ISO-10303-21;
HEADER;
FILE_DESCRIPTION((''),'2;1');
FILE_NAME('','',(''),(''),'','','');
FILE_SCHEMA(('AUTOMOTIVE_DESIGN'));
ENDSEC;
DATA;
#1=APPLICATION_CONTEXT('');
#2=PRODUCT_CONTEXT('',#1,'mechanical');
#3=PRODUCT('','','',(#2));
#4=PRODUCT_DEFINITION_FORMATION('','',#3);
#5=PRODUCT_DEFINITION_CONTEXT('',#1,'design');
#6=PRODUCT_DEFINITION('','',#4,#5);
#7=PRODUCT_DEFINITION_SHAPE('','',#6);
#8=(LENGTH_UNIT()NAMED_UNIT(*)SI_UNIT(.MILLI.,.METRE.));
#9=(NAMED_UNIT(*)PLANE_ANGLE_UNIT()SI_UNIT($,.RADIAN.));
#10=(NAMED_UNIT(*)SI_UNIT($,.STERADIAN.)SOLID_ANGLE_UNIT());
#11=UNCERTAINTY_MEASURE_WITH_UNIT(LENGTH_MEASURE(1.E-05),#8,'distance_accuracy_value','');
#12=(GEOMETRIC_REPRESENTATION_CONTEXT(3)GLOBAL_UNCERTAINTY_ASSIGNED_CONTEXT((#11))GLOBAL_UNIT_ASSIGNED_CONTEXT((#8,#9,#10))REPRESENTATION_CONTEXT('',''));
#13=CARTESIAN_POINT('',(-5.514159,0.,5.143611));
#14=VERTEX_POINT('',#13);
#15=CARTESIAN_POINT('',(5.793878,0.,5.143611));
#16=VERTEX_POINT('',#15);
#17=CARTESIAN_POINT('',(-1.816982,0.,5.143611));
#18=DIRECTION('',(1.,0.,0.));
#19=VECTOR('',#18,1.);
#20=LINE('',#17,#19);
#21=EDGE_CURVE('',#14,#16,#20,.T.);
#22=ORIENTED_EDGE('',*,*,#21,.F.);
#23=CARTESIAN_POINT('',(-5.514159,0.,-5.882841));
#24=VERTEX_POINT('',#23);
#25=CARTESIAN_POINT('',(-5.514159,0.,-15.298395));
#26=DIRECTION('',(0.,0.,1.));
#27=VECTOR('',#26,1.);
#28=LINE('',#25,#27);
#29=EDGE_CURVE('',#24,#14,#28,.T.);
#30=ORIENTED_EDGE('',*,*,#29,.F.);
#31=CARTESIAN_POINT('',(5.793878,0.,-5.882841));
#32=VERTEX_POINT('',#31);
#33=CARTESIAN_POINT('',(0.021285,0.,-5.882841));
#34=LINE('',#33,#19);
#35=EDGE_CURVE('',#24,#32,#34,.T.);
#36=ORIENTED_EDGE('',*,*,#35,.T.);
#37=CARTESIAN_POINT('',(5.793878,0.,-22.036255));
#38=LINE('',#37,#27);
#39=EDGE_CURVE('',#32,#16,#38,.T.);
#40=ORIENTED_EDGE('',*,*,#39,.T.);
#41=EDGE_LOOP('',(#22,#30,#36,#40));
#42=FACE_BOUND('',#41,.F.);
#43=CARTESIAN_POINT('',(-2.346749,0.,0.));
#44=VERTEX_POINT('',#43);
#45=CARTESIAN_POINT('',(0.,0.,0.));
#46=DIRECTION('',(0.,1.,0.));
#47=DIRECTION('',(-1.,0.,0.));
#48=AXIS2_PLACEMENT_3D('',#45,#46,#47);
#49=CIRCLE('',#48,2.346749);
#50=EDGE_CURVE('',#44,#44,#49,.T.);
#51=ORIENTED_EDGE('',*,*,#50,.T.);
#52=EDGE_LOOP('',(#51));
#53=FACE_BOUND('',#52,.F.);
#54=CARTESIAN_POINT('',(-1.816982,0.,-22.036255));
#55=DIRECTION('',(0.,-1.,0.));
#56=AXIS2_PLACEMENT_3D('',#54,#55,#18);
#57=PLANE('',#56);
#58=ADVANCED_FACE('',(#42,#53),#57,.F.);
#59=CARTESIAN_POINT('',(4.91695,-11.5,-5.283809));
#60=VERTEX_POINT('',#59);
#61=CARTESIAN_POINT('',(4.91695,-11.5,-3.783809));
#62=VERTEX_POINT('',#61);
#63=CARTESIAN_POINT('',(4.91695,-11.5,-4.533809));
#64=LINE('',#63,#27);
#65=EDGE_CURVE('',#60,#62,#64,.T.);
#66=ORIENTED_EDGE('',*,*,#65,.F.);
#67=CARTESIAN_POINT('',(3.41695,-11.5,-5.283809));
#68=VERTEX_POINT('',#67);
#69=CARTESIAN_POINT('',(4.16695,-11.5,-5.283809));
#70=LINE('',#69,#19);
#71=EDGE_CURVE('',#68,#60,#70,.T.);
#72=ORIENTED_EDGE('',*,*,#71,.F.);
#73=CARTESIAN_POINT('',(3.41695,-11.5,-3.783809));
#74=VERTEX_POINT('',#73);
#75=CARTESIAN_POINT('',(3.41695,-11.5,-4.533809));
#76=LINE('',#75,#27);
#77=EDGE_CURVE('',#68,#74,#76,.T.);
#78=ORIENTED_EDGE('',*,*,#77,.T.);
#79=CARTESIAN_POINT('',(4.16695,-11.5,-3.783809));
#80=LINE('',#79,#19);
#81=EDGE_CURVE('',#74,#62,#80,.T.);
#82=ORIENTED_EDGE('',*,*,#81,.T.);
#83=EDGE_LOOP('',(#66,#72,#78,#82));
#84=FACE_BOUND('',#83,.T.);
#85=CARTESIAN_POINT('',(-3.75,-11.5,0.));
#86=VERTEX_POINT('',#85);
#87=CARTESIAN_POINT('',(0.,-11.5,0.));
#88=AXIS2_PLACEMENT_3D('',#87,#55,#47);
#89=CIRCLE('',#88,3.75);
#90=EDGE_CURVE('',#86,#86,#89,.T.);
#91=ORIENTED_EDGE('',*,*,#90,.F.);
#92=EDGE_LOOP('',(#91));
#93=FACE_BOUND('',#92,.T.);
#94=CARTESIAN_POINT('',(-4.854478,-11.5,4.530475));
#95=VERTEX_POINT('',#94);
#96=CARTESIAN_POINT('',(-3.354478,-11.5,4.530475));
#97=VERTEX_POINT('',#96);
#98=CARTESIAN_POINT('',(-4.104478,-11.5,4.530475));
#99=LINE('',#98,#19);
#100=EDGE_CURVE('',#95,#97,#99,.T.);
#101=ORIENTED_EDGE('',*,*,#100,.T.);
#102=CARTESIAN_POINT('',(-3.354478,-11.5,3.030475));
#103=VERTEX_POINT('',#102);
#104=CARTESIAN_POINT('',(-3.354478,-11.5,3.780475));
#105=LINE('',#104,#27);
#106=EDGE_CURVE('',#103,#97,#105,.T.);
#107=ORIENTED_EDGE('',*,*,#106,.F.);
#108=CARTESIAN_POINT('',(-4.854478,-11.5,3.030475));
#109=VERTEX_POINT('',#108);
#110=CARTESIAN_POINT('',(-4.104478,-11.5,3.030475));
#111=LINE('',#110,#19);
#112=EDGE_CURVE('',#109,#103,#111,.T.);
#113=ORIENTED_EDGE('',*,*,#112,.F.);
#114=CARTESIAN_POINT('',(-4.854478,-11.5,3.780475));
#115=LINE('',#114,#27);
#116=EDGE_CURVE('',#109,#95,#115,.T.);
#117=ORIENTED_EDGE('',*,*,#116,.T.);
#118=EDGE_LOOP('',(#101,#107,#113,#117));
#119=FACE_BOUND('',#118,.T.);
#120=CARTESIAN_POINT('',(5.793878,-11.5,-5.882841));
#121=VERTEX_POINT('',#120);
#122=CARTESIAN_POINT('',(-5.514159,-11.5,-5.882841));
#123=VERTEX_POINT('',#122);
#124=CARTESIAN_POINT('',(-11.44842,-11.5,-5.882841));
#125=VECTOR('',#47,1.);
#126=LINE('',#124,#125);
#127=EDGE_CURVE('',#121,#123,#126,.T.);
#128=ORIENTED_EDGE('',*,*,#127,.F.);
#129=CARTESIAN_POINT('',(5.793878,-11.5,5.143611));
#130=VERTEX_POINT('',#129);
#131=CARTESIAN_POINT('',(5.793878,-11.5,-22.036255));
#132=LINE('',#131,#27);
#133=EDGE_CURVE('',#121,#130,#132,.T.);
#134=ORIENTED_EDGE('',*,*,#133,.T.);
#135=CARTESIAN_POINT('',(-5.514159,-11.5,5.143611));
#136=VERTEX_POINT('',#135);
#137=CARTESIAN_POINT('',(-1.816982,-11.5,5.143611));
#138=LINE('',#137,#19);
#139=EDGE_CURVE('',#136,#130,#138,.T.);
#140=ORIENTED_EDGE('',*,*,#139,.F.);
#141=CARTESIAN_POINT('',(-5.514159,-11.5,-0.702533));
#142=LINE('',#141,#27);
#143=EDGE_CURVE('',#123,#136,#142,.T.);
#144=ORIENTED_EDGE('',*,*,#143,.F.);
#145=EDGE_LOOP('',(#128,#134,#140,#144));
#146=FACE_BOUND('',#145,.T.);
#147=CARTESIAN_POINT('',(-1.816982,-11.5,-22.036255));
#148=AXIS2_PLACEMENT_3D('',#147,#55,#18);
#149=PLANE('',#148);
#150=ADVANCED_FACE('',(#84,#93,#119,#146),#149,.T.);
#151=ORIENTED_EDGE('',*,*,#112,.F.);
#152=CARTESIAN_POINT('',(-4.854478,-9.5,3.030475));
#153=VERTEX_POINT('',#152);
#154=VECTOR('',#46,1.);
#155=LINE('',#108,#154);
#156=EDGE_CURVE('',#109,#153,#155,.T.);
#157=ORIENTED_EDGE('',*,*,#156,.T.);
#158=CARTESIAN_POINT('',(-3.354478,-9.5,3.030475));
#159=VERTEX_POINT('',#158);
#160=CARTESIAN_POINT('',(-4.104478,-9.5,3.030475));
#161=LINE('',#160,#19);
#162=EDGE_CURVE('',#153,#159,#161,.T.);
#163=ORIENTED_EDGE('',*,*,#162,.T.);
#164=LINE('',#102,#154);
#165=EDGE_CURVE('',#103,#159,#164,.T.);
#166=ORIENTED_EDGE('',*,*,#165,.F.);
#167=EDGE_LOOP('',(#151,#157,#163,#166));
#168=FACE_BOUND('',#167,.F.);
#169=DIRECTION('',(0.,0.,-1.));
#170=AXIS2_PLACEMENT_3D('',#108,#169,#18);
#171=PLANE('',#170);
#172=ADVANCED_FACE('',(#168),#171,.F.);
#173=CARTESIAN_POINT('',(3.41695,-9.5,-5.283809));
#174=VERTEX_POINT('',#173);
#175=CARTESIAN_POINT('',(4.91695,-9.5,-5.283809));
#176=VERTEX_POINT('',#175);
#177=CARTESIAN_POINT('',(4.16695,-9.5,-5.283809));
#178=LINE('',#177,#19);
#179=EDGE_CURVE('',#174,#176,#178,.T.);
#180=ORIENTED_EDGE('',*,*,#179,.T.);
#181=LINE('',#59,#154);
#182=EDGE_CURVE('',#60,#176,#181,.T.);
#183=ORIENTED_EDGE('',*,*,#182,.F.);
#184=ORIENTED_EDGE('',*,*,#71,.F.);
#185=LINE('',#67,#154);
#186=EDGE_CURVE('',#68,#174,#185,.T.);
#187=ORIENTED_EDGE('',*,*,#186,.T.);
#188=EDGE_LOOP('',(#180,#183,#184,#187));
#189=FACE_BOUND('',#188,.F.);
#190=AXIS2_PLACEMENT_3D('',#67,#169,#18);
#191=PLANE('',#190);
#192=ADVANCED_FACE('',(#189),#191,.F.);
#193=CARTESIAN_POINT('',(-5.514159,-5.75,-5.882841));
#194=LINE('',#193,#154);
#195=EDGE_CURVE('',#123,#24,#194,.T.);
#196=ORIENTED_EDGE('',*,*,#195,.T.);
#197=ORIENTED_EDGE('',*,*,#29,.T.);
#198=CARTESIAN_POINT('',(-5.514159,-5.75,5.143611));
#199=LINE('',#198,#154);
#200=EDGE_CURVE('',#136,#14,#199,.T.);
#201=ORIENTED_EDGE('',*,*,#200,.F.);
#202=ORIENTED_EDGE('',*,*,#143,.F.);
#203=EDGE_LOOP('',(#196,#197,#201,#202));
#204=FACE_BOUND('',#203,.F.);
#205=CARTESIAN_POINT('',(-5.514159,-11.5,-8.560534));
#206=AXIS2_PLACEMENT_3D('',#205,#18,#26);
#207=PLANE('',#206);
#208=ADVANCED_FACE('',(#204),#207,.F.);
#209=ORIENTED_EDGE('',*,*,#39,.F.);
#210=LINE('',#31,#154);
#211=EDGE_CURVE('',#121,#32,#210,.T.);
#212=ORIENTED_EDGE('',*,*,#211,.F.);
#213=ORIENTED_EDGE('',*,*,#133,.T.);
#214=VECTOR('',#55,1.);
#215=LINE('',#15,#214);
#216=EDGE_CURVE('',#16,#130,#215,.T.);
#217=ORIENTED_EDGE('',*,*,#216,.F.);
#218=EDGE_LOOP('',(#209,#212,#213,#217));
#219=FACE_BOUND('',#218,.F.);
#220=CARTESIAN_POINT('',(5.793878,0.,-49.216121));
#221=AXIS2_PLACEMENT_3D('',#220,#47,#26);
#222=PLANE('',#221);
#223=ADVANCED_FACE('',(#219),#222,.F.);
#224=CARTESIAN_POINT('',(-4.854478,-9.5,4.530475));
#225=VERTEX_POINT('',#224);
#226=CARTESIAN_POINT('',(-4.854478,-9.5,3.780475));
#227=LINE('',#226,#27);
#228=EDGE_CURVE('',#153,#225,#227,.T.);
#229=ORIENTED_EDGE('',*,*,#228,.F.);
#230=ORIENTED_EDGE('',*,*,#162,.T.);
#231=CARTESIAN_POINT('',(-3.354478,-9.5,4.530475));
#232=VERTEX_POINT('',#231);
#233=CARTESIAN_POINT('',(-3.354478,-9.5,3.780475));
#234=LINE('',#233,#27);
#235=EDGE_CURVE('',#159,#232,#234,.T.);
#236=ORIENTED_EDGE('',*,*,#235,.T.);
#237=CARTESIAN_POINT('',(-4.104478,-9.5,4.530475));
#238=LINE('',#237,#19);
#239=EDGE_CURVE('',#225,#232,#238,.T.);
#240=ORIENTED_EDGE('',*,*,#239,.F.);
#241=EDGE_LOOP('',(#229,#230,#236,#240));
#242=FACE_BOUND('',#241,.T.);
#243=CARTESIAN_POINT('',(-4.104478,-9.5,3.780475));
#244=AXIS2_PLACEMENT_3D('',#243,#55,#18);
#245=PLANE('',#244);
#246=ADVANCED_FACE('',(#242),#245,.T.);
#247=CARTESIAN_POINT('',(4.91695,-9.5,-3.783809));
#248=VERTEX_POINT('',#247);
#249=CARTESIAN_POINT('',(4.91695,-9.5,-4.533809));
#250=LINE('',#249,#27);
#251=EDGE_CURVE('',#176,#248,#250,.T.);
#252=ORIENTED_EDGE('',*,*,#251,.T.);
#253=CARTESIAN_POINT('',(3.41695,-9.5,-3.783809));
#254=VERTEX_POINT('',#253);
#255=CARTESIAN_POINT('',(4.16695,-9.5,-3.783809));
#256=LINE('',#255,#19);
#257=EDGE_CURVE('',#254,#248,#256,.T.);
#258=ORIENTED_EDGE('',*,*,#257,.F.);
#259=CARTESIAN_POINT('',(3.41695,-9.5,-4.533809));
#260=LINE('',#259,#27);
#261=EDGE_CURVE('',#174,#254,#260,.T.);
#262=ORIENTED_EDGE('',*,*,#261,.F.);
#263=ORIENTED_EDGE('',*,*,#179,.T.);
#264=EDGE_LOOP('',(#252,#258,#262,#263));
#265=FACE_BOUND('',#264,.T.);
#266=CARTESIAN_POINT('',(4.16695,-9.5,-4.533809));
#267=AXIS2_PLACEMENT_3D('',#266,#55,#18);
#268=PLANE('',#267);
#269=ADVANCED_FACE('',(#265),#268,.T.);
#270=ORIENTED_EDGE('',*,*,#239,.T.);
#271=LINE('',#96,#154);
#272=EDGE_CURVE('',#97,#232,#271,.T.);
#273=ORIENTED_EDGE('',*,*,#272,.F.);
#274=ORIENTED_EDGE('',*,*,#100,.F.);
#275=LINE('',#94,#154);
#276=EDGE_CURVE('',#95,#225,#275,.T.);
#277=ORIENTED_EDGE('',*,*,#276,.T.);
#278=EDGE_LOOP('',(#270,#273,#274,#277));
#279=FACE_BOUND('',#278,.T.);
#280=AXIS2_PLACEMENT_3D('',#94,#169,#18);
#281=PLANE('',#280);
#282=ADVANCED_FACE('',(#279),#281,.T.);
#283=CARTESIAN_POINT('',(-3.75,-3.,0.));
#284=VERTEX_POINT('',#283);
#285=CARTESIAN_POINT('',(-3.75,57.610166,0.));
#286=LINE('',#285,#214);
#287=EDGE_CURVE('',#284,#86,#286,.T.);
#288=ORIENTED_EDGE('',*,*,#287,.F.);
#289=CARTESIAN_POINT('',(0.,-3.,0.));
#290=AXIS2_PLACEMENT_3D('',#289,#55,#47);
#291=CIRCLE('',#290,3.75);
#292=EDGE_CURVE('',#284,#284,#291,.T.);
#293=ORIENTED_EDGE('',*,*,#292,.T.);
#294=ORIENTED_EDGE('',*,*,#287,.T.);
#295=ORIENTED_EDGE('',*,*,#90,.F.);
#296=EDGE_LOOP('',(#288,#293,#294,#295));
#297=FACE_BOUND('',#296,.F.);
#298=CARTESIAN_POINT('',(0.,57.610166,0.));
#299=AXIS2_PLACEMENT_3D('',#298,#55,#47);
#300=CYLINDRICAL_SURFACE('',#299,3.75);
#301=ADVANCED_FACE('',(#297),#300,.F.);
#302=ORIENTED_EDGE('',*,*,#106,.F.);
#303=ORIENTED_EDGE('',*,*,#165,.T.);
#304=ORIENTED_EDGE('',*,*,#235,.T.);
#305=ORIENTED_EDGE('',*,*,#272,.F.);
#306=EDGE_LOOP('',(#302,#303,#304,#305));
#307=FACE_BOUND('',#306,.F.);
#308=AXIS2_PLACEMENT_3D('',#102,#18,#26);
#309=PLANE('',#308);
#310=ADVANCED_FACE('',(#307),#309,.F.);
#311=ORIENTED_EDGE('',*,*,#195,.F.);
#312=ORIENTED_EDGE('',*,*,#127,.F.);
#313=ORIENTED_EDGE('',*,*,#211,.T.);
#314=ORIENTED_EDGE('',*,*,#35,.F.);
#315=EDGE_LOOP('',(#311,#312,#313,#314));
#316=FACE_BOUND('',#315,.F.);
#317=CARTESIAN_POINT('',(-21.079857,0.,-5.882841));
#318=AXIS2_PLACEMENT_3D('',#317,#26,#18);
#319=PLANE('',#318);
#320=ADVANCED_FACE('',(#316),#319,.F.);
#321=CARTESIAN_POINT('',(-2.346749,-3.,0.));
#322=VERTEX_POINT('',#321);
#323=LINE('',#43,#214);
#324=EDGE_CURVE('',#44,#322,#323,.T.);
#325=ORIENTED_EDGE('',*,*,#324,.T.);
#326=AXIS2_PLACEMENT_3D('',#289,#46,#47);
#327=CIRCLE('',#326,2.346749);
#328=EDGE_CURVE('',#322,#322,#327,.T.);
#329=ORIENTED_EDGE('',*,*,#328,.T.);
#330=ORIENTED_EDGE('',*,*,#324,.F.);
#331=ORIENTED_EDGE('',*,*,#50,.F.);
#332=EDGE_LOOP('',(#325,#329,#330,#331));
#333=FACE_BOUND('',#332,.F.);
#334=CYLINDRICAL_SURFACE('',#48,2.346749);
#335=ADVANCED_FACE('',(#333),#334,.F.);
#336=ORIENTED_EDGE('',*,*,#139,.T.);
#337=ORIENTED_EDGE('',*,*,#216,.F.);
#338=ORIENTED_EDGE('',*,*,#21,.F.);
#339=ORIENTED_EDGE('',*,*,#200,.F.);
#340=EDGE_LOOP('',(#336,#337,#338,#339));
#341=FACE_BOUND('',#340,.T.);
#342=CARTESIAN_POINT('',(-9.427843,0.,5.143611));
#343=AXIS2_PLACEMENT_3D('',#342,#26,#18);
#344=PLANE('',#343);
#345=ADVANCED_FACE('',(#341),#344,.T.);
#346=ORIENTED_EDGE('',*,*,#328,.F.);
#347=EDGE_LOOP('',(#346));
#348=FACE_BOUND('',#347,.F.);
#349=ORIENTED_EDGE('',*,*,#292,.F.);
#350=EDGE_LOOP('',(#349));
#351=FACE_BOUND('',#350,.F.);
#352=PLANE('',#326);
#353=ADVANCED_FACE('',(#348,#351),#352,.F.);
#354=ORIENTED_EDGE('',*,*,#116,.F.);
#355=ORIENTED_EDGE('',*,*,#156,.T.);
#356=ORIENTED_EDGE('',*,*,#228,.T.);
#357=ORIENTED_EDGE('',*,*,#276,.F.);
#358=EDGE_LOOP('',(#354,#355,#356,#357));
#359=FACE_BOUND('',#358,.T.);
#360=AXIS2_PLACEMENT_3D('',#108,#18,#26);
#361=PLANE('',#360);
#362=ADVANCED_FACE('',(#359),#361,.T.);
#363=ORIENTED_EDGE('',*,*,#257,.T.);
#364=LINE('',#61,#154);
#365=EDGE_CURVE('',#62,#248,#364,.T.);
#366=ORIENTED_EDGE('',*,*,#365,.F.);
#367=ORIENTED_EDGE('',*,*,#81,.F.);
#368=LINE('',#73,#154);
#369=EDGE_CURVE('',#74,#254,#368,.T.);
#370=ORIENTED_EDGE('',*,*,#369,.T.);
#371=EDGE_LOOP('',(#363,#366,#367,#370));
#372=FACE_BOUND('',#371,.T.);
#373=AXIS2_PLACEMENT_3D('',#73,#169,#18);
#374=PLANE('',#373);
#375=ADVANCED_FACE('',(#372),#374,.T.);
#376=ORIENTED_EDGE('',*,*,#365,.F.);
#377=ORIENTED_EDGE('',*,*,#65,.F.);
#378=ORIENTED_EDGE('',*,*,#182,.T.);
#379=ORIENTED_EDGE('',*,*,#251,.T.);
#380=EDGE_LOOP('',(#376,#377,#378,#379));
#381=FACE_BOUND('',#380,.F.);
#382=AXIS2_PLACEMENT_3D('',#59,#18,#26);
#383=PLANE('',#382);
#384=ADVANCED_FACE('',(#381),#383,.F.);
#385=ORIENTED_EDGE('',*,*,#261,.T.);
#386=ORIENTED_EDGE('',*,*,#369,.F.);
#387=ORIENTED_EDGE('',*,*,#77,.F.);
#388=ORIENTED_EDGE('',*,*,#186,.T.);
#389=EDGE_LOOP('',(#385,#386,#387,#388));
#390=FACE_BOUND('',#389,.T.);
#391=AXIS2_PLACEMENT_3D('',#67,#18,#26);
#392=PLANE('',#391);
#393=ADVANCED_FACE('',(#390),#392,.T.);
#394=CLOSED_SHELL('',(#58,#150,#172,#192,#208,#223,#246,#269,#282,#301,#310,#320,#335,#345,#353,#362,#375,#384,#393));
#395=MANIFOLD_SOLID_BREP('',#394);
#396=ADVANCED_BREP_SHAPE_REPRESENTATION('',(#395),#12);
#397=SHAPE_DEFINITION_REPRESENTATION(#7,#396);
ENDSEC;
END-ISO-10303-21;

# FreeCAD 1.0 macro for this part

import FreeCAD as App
import Part
import Sketcher

V = App.Vector

doc = App.newDocument("Part")
body = doc.addObject("PartDesign::Body", "Body")

# Sketch on XZ plane
sketch1 = body.newObject("Sketcher::SketchObject", "Sketch")
sketch1.AttachmentSupport = (doc.getObject("XZ_Plane"), [""])
sketch1.MapMode = "FlatFace"
sketch1.addGeometry([
    Part.LineSegment(V(-9, 5, 0), V(-9, -49, 0)),
    Part.LineSegment(V(-9, -49, 0), V(6, -49, 0)),
    Part.LineSegment(V(6, -49, 0), V(6, 5, 0)),
    Part.LineSegment(V(6, 5, 0), V(-9, 5, 0)),
], False)
sketch1.addConstraint([
    Sketcher.Constraint("Coincident", 0, 2, 1, 1),
    Sketcher.Constraint("Coincident", 1, 2, 2, 1),
    Sketcher.Constraint("Coincident", 2, 2, 3, 1),
    Sketcher.Constraint("Coincident", 3, 2, 0, 1),
    Sketcher.Constraint("Vertical", 0),
    Sketcher.Constraint("Horizontal", 1),
    Sketcher.Constraint("Vertical", 2),
    Sketcher.Constraint("Horizontal", 3),
    Sketcher.Constraint("DistanceX", 1, 1, 1, 2, 15.221721),
    Sketcher.Constraint("DistanceY", 0, 2, 0, 1, 54.359732),
    Sketcher.Constraint("DistanceY", 0, 2, -1, 1, 49.216121),
    Sketcher.Constraint("DistanceX", -1, 1, 1, 2, 5.793878),
])
pad1 = body.newObject("PartDesign::Pad", "Pad")
pad1.Profile = sketch1
pad1.Length = 11.5

# Sketch on XZ plane
sketch2 = body.newObject("Sketcher::SketchObject", "Sketch001")
sketch2.AttachmentSupport = (doc.getObject("XZ_Plane"), [""])
sketch2.MapMode = "FlatFace"
sketch2.addGeometry(Part.Circle(V(0, 0, 0), V(0, 0, 1), 3.8), False)
sketch2.addConstraint([
    Sketcher.Constraint("Coincident", 0, 3, -1, 1),
    Sketcher.Constraint("Diameter", 0, 7.5),
])
doc.recompute()
hole = body.newObject("PartDesign::Hole", "Hole")
hole.Profile = sketch2
hole.ThreadType = "None"
hole.Diameter = 7.5
hole.DepthType = "ThroughAll"
hole.Reversed = True

# Sketch on XZ plane
sketch3 = body.newObject("Sketcher::SketchObject", "Sketch002")
sketch3.AttachmentSupport = (doc.getObject("XZ_Plane"), [""])
sketch3.MapMode = "FlatFace"
sketch3.addGeometry([
    Part.LineSegment(V(-21, -6, 0), V(-21, -51, 0)),
    Part.LineSegment(V(-21, -51, 0), V(21, -51, 0)),
    Part.LineSegment(V(21, -51, 0), V(21, -6, 0)),
    Part.LineSegment(V(21, -6, 0), V(-21, -6, 0)),
], False)
sketch3.addConstraint([
    Sketcher.Constraint("Coincident", 0, 2, 1, 1),
    Sketcher.Constraint("Coincident", 1, 2, 2, 1),
    Sketcher.Constraint("Coincident", 2, 2, 3, 1),
    Sketcher.Constraint("Coincident", 3, 2, 0, 1),
    Sketcher.Constraint("Vertical", 0),
    Sketcher.Constraint("Horizontal", 1),
    Sketcher.Constraint("Vertical", 2),
    Sketcher.Constraint("Horizontal", 3),
    Sketcher.Constraint("DistanceX", 1, 1, 1, 2, 42.202285),
    Sketcher.Constraint("DistanceY", 0, 2, 0, 1, 45.044836),
    Sketcher.Constraint("DistanceY", 2, 2, -1, 1, 5.882841),
    Sketcher.Constraint("DistanceX", 0, 2, -1, 1, 21.079857),
])
pocket1 = body.newObject("PartDesign::Pocket", "Pocket")
pocket1.Profile = sketch3
pocket1.Length = 25
pocket1.Reversed = True

# Sketch on XZ plane
sketch4 = body.newObject("Sketcher::SketchObject", "Sketch003")
sketch4.AttachmentSupport = (doc.getObject("XZ_Plane"), [""])
sketch4.MapMode = "FlatFace"
sketch4.AttachmentOffset = App.Placement(V(0, 0, 11.5), App.Rotation())
sketch4.addGeometry([
    Part.LineSegment(V(-12, 7, 0), V(-12, -9, 0)),
    Part.LineSegment(V(-12, -9, 0), V(-6, -9, 0)),
    Part.LineSegment(V(-6, -9, 0), V(-6, 7, 0)),
    Part.LineSegment(V(-6, 7, 0), V(-12, 7, 0)),
], False)
sketch4.addConstraint([
    Sketcher.Constraint("Coincident", 0, 2, 1, 1),
    Sketcher.Constraint("Coincident", 1, 2, 2, 1),
    Sketcher.Constraint("Coincident", 2, 2, 3, 1),
    Sketcher.Constraint("Coincident", 3, 2, 0, 1),
    Sketcher.Constraint("Vertical", 0),
    Sketcher.Constraint("Horizontal", 1),
    Sketcher.Constraint("Vertical", 2),
    Sketcher.Constraint("Horizontal", 3),
    Sketcher.Constraint("DistanceX", 1, 1, 1, 2, 6.489188),
    Sketcher.Constraint("DistanceY", 0, 2, 0, 1, 15.716003),
    Sketcher.Constraint("DistanceX", 1, 2, -1, 1, 5.514159),
    Sketcher.Constraint("DistanceY", -1, 1, 2, 2, 7.155468),
])
pocket2 = body.newObject("PartDesign::Pocket", "Pocket001")
pocket2.Profile = sketch4
pocket2.Length = 14

# Sketch on XZ plane
sketch5 = body.newObject("Sketcher::SketchObject", "Sketch004")
sketch5.AttachmentSupport = (doc.getObject("XZ_Plane"), [""])
sketch5.MapMode = "FlatFace"
sketch5.addGeometry([
    Part.Circle(V(0, 0, 0), V(0, 0, 1), 4.5),
    Part.Circle(V(0, 0, 0), V(0, 0, 1), 2.3),
], False)
sketch5.addConstraint([
    Sketcher.Constraint("Coincident", 0, 3, -1, 1),
    Sketcher.Constraint("Coincident", 1, 3, -1, 1),
    Sketcher.Constraint("Diameter", 0, 9.054666),
    Sketcher.Constraint("Diameter", 1, 4.693498),
])
pad2 = body.newObject("PartDesign::Pad", "Pad001")
pad2.Profile = sketch5
pad2.Length = 3

# Sketch on XZ plane
sketch6 = body.newObject("Sketcher::SketchObject", "Sketch005")
sketch6.AttachmentSupport = (doc.getObject("XZ_Plane"), [""])
sketch6.MapMode = "FlatFace"
sketch6.AttachmentOffset = App.Placement(V(0, 0, 11.5), App.Rotation())
sketch6.addGeometry([
    Part.LineSegment(V(-4.9, 4.5, 0), V(-4.9, 3, 0)),  # 0
    Part.LineSegment(V(-4.9, 3, 0), V(-3.4, 3, 0)),  # 1
    Part.LineSegment(V(-3.4, 3, 0), V(-3.4, 4.5, 0)),  # 2
    Part.LineSegment(V(-3.4, 4.5, 0), V(-4.9, 4.5, 0)),  # 3
    Part.LineSegment(V(3.4, -3.8, 0), V(3.4, -5.3, 0)),  # 4
    Part.LineSegment(V(3.4, -5.3, 0), V(4.9, -5.3, 0)),  # 5
    Part.LineSegment(V(4.9, -5.3, 0), V(4.9, -3.8, 0)),  # 6
    Part.LineSegment(V(4.9, -3.8, 0), V(3.4, -3.8, 0)),  # 7
], False)
sketch6.addConstraint([
    Sketcher.Constraint("Coincident", 0, 2, 1, 1),
    Sketcher.Constraint("Coincident", 1, 2, 2, 1),
    Sketcher.Constraint("Coincident", 2, 2, 3, 1),
    Sketcher.Constraint("Coincident", 3, 2, 0, 1),
    Sketcher.Constraint("Coincident", 4, 2, 5, 1),
    Sketcher.Constraint("Coincident", 5, 2, 6, 1),
    Sketcher.Constraint("Coincident", 6, 2, 7, 1),
    Sketcher.Constraint("Coincident", 7, 2, 4, 1),
    Sketcher.Constraint("Vertical", 0),
    Sketcher.Constraint("Horizontal", 1),
    Sketcher.Constraint("Vertical", 2),
    Sketcher.Constraint("Horizontal", 3),
    Sketcher.Constraint("Vertical", 4),
    Sketcher.Constraint("Horizontal", 5),
    Sketcher.Constraint("Vertical", 6),
    Sketcher.Constraint("Horizontal", 7),
    Sketcher.Constraint("Equal", 3, 5),
    Sketcher.Constraint("Equal", 7, 0),
    Sketcher.Constraint("Equal", 2, 4),
    Sketcher.Constraint("DistanceX", 1, 1, 1, 2, 1.5),
    Sketcher.Constraint("DistanceX", 0, 2, -1, 1, 4.854478),
    Sketcher.Constraint("DistanceX", -1, 1, 4, 2, 3.41695),
    Sketcher.Constraint("DistanceY", 4, 2, -1, 1, 5.283809),
    Sketcher.Constraint("DistanceY", -1, 1, 0, 2, 3.030475),
])
pocket3 = body.newObject("PartDesign::Pocket", "Pocket002")
pocket3.Profile = sketch6
pocket3.Length = 2

doc.recompute()
